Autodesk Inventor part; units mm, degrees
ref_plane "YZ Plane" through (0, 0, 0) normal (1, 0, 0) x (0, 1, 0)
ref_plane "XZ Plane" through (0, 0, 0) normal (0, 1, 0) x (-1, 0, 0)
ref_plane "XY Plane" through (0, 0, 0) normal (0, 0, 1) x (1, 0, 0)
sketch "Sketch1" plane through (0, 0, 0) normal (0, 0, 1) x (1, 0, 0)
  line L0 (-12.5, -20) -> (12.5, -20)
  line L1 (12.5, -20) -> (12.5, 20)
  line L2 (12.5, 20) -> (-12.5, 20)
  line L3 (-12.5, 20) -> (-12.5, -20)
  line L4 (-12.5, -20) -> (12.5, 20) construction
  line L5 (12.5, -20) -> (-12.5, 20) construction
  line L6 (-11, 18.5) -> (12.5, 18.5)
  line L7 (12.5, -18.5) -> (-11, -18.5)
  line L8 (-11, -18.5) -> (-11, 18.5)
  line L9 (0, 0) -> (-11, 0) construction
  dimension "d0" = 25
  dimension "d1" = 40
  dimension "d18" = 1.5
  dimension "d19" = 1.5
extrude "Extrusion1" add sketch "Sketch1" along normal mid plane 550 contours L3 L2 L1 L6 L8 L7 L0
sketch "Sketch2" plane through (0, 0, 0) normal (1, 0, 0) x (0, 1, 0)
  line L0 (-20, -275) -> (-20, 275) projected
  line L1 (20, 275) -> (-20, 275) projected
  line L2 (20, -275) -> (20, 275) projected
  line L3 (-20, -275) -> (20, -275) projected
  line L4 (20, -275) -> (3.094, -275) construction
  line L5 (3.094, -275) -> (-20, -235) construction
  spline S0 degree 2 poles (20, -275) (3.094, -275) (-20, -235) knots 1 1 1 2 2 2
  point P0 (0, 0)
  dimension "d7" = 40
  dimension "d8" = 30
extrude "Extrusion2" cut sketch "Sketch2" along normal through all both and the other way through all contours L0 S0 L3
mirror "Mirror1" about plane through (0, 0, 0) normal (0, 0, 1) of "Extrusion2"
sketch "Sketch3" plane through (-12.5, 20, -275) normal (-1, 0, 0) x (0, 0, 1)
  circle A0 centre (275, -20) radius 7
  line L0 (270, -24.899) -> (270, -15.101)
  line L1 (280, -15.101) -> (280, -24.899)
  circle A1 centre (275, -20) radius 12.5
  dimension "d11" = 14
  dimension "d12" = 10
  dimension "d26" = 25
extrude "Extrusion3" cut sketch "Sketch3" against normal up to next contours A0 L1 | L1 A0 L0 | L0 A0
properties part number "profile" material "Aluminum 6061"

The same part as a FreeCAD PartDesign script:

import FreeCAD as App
import Part
import Sketcher
from FreeCAD import Vector

doc = App.newDocument("Part")
params = doc.addObject("Spreadsheet::Sheet", "Params")
for row, (alias, value) in enumerate([
    ("sketch1_width", "25 mm"),
    ("sketch1_height", "40 mm"),
    ("sketch1_height2", "1.5 mm"),
    ("pad1_length", "550 mm"),
    ("sketch3_diameter", "14 mm"),
], start=1):
    params.set(f"A{row}", alias)
    params.set(f"B{row}", "=" + value)
    params.setAlias(f"B{row}", alias)

body = doc.addObject("PartDesign::Body", "Body")

# Sketch on XY plane
sketch1 = body.newObject("Sketcher::SketchObject", "Sketch")
sketch1.AttachmentSupport = (doc.getObject("XY_Plane"), [""])
sketch1.MapMode = "FlatFace"
sketch1.addGeometry(Part.LineSegment(Vector(-12.5, 20, 0), Vector(-12.5, -20, 0)), False)
sketch1.addGeometry(Part.LineSegment(Vector(-12.5, -20, 0), Vector(12.5, -20, 0)), False)
sketch1.addGeometry(Part.LineSegment(Vector(12.5, -20, 0), Vector(12.5, -18.5, 0)), False)
sketch1.addGeometry(Part.LineSegment(Vector(12.5, -18.5, 0), Vector(-11, -18.5, 0)), False)
sketch1.addGeometry(Part.LineSegment(Vector(-11, -18.5, 0), Vector(-11, 18.5, 0)), False)
sketch1.addGeometry(Part.LineSegment(Vector(-11, 18.5, 0), Vector(12.5, 18.5, 0)), False)
sketch1.addGeometry(Part.LineSegment(Vector(12.5, 18.5, 0), Vector(12.5, 20, 0)), False)
sketch1.addGeometry(Part.LineSegment(Vector(12.5, 20, 0), Vector(-12.5, 20, 0)), False)
sketch1.addConstraint(Sketcher.Constraint("Coincident", 0, 2, 1, 1))
sketch1.addConstraint(Sketcher.Constraint("Coincident", 1, 2, 2, 1))
sketch1.addConstraint(Sketcher.Constraint("Coincident", 2, 2, 3, 1))
sketch1.addConstraint(Sketcher.Constraint("Coincident", 3, 2, 4, 1))
sketch1.addConstraint(Sketcher.Constraint("Coincident", 4, 2, 5, 1))
sketch1.addConstraint(Sketcher.Constraint("Coincident", 5, 2, 6, 1))
sketch1.addConstraint(Sketcher.Constraint("Coincident", 6, 2, 7, 1))
sketch1.addConstraint(Sketcher.Constraint("Coincident", 7, 2, 0, 1))
sketch1.addConstraint(Sketcher.Constraint("Vertical", 0))
sketch1.addConstraint(Sketcher.Constraint("Horizontal", 1))
sketch1.addConstraint(Sketcher.Constraint("Vertical", 2))
sketch1.addConstraint(Sketcher.Constraint("Horizontal", 3))
sketch1.addConstraint(Sketcher.Constraint("Vertical", 4))
sketch1.addConstraint(Sketcher.Constraint("Horizontal", 5))
sketch1.addConstraint(Sketcher.Constraint("Vertical", 6))
sketch1.addConstraint(Sketcher.Constraint("Horizontal", 7))
sketch1.addConstraint(Sketcher.Constraint("Symmetric", 0, 2, 6, 2, -1, 1))
sketch1.addConstraint(Sketcher.Constraint("Symmetric", 2, 2, 5, 2, -1))
sketch1.addConstraint(Sketcher.Constraint("DistanceX", 1, 1, 1, 2, 25.0))
sketch1.addConstraint(Sketcher.Constraint("DistanceY", 0, 2, 0, 1, 40.0))
sketch1.addConstraint(Sketcher.Constraint("DistanceY", 2, 1, 2, 2, 1.5))
sketch1.addConstraint(Sketcher.Constraint("DistanceX", 0, 2, 3, 2, 1.5))
sketch1.setExpression("Constraints[18]", "Params.sketch1_width")
sketch1.setExpression("Constraints[19]", "Params.sketch1_height")
sketch1.setExpression("Constraints[20]", "Params.sketch1_height2")
pad1 = body.newObject("PartDesign::Pad", "Pad")
pad1.Profile = sketch1
pad1.setExpression("Length", "Params.pad1_length")
pad1.Midplane = True

# Sketch on YZ plane
sketch2 = body.newObject("Sketcher::SketchObject", "Sketch001")
sketch2.AttachmentSupport = (doc.getObject("YZ_Plane"), [""])
sketch2.MapMode = "FlatFace"
sketch2.addGeometry(Part.LineSegment(Vector(-20, -235, 0), Vector(-20, -275, 0)), False)
sketch2.addGeometry(Part.LineSegment(Vector(-20, -275, 0), Vector(20, -275, 0)), False)
sketch2.addGeometry(Part.BSplineCurve([Vector(20, -275, 0), Vector(3.094, -275, 0), Vector(-20, -235, 0)], [3, 3], [1, 2], False, 2, [1, 1, 1], False), False)
sketch2.addConstraint(Sketcher.Constraint("Block", 2))
sketch2.addConstraint(Sketcher.Constraint("Coincident", 0, 2, 1, 1))
sketch2.addConstraint(Sketcher.Constraint("Coincident", 1, 2, 2, 1))
sketch2.addConstraint(Sketcher.Constraint("Coincident", 2, 2, 0, 1))
sketch2.addConstraint(Sketcher.Constraint("Vertical", 0))
sketch2.addConstraint(Sketcher.Constraint("Horizontal", 1))
pocket1 = body.newObject("PartDesign::Pocket", "Pocket")
pocket1.Profile = sketch2
pocket1.Type = "ThroughAll"
pocket1.Midplane = True
doc.recompute()

mirrored = body.newObject("PartDesign::Mirrored", "Mirrored")
mirrored.Originals = [pocket1]
mirrored.MirrorPlane = (doc.getObject("XY_Plane"), [""])
body.Tip = mirrored

# Sketch on YZ plane
sketch3 = body.newObject("Sketcher::SketchObject", "Sketch002")
sketch3.AttachmentSupport = (doc.getObject("YZ_Plane"), [""])
sketch3.MapMode = "FlatFace"
sketch3.AttachmentOffset = App.Placement(Vector(0, 0, -12.5), App.Rotation())
sketch3.addGeometry(Part.Circle(Vector(0, 0, 0), Vector(0, 0, 1), 7), False)
sketch3.addConstraint(Sketcher.Constraint("Coincident", 0, 3, -1, 1))
sketch3.addConstraint(Sketcher.Constraint("Diameter", 0, 14.0))
sketch3.setExpression("Constraints[1]", "Params.sketch3_diameter")
pocket2 = body.newObject("PartDesign::Pocket", "Pocket001")
pocket2.Profile = sketch3
pocket2.Type = "UpToFirst"
pocket2.Reversed = True

doc.recompute()
